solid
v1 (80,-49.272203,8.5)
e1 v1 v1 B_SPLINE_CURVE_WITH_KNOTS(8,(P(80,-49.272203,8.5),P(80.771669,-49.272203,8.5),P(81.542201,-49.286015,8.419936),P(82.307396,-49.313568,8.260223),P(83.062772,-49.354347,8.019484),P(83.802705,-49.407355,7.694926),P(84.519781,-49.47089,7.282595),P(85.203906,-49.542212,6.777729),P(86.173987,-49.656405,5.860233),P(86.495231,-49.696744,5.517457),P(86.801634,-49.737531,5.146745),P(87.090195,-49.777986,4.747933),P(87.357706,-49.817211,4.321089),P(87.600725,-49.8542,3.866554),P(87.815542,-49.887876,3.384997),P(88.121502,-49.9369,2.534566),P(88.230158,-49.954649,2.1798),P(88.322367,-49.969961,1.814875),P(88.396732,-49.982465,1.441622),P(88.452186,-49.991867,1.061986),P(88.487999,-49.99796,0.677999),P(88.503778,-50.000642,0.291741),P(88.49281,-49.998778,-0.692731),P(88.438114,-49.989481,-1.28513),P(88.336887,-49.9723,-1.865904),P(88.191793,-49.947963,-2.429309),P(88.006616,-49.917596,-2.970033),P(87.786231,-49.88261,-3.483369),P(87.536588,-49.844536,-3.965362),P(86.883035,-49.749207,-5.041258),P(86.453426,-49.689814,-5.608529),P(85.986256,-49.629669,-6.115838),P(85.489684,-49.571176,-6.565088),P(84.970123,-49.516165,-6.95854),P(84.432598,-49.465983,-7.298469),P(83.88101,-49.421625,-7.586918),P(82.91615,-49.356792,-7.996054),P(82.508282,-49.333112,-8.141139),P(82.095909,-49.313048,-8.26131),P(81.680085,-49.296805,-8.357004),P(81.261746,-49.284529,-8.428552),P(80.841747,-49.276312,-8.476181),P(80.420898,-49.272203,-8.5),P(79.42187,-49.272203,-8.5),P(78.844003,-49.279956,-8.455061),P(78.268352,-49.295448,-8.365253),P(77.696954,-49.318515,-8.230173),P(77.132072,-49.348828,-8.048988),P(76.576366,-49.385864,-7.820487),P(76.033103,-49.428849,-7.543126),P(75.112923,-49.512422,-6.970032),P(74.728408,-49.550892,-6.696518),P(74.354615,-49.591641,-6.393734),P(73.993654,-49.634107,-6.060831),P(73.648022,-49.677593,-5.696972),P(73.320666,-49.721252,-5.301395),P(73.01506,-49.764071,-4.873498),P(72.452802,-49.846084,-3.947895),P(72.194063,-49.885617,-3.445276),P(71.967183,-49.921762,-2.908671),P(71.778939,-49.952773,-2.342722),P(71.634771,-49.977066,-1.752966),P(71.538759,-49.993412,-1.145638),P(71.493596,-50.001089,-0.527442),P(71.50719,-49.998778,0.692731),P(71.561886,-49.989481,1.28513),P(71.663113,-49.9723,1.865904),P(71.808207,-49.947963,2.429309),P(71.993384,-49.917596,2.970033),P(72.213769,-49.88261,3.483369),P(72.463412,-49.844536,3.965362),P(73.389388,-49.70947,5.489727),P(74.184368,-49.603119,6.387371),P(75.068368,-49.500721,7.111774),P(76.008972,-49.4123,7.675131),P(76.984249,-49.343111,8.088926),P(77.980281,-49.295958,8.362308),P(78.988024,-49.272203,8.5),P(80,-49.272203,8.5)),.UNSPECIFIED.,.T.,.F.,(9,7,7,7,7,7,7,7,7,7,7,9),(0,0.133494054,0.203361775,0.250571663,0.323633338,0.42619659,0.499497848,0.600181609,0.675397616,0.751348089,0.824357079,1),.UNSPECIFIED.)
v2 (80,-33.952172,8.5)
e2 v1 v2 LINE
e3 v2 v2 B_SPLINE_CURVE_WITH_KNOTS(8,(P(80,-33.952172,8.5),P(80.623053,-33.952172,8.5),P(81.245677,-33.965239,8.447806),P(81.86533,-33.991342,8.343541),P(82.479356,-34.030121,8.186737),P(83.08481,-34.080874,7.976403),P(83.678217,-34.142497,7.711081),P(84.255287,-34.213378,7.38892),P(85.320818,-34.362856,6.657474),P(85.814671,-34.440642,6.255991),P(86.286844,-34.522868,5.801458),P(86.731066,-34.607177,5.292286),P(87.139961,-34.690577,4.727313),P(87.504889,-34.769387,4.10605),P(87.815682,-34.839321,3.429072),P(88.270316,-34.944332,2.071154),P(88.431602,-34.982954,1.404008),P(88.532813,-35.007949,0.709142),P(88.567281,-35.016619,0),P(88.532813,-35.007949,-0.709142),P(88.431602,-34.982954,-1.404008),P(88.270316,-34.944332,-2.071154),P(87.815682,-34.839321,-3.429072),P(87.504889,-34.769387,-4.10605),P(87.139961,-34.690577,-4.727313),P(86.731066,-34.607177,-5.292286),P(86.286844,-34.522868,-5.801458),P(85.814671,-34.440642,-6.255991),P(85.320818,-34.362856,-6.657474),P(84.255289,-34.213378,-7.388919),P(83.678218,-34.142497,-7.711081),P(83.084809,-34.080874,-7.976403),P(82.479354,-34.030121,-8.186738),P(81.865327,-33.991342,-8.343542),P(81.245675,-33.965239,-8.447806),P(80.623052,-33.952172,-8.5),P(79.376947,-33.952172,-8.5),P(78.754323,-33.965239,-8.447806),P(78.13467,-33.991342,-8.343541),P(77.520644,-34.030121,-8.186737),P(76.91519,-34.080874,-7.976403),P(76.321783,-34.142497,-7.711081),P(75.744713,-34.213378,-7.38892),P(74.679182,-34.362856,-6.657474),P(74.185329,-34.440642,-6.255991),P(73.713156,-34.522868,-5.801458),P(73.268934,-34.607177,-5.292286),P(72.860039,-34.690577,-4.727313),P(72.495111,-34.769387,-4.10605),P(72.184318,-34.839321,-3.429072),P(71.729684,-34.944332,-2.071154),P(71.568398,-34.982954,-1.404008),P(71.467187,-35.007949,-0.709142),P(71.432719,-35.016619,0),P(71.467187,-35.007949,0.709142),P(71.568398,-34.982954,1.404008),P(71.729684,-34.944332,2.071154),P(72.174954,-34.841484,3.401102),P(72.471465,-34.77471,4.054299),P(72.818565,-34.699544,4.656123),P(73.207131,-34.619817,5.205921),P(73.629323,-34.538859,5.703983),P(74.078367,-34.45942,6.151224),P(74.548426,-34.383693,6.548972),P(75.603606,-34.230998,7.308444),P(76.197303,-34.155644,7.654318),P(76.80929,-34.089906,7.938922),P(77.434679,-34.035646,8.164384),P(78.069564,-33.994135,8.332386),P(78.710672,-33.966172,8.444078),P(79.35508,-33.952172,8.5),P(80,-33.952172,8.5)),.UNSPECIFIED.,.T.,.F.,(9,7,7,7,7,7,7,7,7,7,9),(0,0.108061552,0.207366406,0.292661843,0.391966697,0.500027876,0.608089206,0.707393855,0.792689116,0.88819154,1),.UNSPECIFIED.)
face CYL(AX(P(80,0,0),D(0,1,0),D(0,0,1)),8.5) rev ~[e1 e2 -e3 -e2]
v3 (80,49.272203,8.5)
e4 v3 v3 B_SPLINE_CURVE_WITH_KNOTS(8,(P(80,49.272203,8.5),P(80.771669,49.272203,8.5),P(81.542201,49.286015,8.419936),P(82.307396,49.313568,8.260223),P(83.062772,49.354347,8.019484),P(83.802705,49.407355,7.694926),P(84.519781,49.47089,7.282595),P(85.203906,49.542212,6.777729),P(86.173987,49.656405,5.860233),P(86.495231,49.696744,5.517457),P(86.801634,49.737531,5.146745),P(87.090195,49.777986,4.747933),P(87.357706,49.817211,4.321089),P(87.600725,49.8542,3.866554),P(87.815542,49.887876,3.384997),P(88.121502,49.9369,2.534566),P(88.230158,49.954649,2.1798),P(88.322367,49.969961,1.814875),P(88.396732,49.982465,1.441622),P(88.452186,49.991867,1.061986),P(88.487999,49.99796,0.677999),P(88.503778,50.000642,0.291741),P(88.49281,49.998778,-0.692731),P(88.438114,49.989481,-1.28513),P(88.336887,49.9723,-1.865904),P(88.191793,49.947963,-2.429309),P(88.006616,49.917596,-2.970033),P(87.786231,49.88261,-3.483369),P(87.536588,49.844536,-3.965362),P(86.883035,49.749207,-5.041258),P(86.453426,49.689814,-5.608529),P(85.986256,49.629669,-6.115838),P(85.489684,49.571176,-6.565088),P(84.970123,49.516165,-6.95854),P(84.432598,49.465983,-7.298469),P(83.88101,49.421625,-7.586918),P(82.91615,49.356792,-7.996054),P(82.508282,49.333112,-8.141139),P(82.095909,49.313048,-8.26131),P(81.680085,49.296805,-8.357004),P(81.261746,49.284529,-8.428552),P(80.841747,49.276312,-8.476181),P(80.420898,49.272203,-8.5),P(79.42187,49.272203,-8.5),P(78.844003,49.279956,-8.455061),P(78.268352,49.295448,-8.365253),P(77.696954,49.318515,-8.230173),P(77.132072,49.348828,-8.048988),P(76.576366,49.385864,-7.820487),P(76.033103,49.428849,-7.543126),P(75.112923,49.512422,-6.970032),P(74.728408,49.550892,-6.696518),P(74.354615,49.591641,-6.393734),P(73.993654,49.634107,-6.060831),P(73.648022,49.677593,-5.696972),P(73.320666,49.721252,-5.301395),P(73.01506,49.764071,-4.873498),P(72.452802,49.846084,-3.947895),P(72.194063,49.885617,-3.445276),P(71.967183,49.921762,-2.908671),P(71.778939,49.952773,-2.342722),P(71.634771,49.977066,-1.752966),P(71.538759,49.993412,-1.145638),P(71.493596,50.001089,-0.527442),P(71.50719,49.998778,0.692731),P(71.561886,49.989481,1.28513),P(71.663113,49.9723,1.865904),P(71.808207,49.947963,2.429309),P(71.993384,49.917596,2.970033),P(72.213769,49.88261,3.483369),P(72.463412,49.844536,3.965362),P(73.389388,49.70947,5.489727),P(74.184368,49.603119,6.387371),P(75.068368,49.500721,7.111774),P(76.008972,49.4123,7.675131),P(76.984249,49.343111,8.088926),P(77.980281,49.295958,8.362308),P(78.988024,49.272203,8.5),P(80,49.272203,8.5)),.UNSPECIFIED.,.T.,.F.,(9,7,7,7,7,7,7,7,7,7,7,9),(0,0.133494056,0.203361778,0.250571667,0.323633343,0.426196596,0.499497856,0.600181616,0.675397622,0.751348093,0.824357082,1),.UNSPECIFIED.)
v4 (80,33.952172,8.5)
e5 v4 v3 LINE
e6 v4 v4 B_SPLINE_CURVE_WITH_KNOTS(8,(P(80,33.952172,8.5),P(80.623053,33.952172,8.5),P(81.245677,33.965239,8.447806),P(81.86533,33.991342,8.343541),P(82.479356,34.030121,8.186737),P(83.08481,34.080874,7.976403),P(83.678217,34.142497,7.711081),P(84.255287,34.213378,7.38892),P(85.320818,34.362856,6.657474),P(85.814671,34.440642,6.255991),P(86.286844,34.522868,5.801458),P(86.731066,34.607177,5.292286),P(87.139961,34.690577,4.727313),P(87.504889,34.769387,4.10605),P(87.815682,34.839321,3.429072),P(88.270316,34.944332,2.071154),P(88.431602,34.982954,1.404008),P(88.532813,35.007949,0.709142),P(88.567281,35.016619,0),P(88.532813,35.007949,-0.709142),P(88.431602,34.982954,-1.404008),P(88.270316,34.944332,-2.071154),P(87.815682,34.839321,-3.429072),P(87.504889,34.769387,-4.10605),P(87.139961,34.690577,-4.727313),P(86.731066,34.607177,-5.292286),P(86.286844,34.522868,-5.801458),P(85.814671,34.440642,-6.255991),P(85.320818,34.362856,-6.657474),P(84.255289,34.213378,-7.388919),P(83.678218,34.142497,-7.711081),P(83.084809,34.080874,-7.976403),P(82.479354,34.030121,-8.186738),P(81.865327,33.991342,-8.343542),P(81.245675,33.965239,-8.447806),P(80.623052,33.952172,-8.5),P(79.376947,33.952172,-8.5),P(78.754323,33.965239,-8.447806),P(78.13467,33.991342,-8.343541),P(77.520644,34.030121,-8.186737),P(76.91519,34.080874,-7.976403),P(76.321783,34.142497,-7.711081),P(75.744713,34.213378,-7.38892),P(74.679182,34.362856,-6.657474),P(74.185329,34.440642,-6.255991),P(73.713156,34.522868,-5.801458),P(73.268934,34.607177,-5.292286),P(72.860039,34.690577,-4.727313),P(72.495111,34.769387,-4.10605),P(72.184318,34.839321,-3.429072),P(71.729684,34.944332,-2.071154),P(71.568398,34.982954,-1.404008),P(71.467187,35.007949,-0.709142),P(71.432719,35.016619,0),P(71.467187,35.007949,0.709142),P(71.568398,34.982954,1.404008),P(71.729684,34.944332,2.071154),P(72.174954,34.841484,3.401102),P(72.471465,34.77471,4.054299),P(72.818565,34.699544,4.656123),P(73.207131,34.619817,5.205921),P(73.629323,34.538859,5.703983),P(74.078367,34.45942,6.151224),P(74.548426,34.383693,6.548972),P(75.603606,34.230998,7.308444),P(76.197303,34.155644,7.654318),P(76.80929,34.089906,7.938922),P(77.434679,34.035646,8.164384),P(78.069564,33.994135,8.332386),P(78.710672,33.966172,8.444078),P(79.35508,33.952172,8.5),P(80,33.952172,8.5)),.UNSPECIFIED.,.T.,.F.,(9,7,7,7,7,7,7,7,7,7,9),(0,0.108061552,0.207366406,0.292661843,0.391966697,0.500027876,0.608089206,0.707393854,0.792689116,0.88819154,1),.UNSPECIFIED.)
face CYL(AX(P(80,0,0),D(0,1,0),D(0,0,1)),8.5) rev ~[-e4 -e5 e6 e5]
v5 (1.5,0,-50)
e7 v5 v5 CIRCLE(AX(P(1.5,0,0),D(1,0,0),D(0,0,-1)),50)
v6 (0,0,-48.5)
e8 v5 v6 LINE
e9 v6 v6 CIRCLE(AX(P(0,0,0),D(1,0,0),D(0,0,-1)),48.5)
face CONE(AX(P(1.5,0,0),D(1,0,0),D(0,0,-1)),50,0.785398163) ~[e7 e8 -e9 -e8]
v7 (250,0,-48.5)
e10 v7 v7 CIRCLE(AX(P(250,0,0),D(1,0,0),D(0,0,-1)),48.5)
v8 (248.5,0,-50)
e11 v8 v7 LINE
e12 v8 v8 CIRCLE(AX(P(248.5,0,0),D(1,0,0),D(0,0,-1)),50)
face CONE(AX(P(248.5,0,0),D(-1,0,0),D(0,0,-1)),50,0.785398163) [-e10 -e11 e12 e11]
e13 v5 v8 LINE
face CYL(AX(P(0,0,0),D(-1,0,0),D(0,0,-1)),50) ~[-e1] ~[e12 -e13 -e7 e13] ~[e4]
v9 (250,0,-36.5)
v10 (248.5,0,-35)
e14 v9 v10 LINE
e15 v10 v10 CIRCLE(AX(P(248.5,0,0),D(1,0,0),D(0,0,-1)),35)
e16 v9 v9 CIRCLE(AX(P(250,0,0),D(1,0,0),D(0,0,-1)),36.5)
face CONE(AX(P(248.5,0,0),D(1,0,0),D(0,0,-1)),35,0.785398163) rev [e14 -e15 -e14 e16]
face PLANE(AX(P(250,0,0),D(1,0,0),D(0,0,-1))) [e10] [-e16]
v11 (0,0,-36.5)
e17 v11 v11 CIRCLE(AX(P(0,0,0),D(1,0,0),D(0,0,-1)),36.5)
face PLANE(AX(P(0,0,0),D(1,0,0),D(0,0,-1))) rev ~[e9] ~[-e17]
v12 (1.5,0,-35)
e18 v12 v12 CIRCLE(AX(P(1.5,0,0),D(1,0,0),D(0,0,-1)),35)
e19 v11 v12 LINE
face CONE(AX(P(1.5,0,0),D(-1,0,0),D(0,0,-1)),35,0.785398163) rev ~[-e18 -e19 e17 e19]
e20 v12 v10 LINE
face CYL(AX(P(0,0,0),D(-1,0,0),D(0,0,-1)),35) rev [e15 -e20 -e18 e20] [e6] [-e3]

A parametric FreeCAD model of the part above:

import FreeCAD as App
import Part
import Sketcher

V = App.Vector


def edges_at(feature, points):
    """Names of the edges that pass closest to the given points."""
    edges = feature.Shape.Edges
    near = lambda p: min(range(len(edges)), key=lambda i: edges[i].distToShape(Part.Vertex(*p))[0])
    return sorted({f"Edge{near(p) + 1}" for p in points})

doc = App.newDocument("Part")
body = doc.addObject("PartDesign::Body", "Body")

sketch1 = body.newObject("Sketcher::SketchObject", "Sketch")
sketch1.AttachmentSupport = (doc.getObject("YZ_Plane"), [""])
sketch1.MapMode = "FlatFace"
sketch1.addGeometry([
    Part.Circle(V(0, 0, 0), V(0, 0, 1), 50),
    Part.Circle(V(0, 0, 0), V(0, 0, 1), 35),
], False)
sketch1.addConstraint([
    Sketcher.Constraint("Coincident", 0, 3, -1, 1),
    Sketcher.Constraint("Coincident", 1, 3, -1, 1),
    Sketcher.Constraint("Diameter", 0, 100.0),
    Sketcher.Constraint("Diameter", 1, 70.0),
])
pad1 = body.newObject("PartDesign::Pad", "Pad")
pad1.Profile = sketch1
pad1.Length = 250

sketch2 = body.newObject("Sketcher::SketchObject", "Sketch001")
sketch2.AttachmentSupport = (doc.getObject("XZ_Plane"), [""])
sketch2.MapMode = "FlatFace"
sketch2.addGeometry(Part.Circle(V(80, 0, 0), V(0, 0, 1), 8.5), False)
sketch2.addConstraint([
    Sketcher.Constraint("PointOnObject", 0, 3, -1),
    Sketcher.Constraint("Diameter", 0, 17.0),
    Sketcher.Constraint("DistanceX", -1, 1, 0, 3, 80.0),
])
pocket1 = body.newObject("PartDesign::Pocket", "Pocket")
pocket1.Profile = sketch2
pocket1.Length = 860
pocket1.Midplane = True
doc.recompute()

chamfer = body.newObject("PartDesign::Chamfer", "Chamfer")
chamfer.Base = (pocket1, edges_at(pocket1, [
    (0, 0, 50),
    (250, 0, 50),
    (0, 0, 35),
    (250, 0, 35),
]))
chamfer.Size = 1.5

doc.recompute()
